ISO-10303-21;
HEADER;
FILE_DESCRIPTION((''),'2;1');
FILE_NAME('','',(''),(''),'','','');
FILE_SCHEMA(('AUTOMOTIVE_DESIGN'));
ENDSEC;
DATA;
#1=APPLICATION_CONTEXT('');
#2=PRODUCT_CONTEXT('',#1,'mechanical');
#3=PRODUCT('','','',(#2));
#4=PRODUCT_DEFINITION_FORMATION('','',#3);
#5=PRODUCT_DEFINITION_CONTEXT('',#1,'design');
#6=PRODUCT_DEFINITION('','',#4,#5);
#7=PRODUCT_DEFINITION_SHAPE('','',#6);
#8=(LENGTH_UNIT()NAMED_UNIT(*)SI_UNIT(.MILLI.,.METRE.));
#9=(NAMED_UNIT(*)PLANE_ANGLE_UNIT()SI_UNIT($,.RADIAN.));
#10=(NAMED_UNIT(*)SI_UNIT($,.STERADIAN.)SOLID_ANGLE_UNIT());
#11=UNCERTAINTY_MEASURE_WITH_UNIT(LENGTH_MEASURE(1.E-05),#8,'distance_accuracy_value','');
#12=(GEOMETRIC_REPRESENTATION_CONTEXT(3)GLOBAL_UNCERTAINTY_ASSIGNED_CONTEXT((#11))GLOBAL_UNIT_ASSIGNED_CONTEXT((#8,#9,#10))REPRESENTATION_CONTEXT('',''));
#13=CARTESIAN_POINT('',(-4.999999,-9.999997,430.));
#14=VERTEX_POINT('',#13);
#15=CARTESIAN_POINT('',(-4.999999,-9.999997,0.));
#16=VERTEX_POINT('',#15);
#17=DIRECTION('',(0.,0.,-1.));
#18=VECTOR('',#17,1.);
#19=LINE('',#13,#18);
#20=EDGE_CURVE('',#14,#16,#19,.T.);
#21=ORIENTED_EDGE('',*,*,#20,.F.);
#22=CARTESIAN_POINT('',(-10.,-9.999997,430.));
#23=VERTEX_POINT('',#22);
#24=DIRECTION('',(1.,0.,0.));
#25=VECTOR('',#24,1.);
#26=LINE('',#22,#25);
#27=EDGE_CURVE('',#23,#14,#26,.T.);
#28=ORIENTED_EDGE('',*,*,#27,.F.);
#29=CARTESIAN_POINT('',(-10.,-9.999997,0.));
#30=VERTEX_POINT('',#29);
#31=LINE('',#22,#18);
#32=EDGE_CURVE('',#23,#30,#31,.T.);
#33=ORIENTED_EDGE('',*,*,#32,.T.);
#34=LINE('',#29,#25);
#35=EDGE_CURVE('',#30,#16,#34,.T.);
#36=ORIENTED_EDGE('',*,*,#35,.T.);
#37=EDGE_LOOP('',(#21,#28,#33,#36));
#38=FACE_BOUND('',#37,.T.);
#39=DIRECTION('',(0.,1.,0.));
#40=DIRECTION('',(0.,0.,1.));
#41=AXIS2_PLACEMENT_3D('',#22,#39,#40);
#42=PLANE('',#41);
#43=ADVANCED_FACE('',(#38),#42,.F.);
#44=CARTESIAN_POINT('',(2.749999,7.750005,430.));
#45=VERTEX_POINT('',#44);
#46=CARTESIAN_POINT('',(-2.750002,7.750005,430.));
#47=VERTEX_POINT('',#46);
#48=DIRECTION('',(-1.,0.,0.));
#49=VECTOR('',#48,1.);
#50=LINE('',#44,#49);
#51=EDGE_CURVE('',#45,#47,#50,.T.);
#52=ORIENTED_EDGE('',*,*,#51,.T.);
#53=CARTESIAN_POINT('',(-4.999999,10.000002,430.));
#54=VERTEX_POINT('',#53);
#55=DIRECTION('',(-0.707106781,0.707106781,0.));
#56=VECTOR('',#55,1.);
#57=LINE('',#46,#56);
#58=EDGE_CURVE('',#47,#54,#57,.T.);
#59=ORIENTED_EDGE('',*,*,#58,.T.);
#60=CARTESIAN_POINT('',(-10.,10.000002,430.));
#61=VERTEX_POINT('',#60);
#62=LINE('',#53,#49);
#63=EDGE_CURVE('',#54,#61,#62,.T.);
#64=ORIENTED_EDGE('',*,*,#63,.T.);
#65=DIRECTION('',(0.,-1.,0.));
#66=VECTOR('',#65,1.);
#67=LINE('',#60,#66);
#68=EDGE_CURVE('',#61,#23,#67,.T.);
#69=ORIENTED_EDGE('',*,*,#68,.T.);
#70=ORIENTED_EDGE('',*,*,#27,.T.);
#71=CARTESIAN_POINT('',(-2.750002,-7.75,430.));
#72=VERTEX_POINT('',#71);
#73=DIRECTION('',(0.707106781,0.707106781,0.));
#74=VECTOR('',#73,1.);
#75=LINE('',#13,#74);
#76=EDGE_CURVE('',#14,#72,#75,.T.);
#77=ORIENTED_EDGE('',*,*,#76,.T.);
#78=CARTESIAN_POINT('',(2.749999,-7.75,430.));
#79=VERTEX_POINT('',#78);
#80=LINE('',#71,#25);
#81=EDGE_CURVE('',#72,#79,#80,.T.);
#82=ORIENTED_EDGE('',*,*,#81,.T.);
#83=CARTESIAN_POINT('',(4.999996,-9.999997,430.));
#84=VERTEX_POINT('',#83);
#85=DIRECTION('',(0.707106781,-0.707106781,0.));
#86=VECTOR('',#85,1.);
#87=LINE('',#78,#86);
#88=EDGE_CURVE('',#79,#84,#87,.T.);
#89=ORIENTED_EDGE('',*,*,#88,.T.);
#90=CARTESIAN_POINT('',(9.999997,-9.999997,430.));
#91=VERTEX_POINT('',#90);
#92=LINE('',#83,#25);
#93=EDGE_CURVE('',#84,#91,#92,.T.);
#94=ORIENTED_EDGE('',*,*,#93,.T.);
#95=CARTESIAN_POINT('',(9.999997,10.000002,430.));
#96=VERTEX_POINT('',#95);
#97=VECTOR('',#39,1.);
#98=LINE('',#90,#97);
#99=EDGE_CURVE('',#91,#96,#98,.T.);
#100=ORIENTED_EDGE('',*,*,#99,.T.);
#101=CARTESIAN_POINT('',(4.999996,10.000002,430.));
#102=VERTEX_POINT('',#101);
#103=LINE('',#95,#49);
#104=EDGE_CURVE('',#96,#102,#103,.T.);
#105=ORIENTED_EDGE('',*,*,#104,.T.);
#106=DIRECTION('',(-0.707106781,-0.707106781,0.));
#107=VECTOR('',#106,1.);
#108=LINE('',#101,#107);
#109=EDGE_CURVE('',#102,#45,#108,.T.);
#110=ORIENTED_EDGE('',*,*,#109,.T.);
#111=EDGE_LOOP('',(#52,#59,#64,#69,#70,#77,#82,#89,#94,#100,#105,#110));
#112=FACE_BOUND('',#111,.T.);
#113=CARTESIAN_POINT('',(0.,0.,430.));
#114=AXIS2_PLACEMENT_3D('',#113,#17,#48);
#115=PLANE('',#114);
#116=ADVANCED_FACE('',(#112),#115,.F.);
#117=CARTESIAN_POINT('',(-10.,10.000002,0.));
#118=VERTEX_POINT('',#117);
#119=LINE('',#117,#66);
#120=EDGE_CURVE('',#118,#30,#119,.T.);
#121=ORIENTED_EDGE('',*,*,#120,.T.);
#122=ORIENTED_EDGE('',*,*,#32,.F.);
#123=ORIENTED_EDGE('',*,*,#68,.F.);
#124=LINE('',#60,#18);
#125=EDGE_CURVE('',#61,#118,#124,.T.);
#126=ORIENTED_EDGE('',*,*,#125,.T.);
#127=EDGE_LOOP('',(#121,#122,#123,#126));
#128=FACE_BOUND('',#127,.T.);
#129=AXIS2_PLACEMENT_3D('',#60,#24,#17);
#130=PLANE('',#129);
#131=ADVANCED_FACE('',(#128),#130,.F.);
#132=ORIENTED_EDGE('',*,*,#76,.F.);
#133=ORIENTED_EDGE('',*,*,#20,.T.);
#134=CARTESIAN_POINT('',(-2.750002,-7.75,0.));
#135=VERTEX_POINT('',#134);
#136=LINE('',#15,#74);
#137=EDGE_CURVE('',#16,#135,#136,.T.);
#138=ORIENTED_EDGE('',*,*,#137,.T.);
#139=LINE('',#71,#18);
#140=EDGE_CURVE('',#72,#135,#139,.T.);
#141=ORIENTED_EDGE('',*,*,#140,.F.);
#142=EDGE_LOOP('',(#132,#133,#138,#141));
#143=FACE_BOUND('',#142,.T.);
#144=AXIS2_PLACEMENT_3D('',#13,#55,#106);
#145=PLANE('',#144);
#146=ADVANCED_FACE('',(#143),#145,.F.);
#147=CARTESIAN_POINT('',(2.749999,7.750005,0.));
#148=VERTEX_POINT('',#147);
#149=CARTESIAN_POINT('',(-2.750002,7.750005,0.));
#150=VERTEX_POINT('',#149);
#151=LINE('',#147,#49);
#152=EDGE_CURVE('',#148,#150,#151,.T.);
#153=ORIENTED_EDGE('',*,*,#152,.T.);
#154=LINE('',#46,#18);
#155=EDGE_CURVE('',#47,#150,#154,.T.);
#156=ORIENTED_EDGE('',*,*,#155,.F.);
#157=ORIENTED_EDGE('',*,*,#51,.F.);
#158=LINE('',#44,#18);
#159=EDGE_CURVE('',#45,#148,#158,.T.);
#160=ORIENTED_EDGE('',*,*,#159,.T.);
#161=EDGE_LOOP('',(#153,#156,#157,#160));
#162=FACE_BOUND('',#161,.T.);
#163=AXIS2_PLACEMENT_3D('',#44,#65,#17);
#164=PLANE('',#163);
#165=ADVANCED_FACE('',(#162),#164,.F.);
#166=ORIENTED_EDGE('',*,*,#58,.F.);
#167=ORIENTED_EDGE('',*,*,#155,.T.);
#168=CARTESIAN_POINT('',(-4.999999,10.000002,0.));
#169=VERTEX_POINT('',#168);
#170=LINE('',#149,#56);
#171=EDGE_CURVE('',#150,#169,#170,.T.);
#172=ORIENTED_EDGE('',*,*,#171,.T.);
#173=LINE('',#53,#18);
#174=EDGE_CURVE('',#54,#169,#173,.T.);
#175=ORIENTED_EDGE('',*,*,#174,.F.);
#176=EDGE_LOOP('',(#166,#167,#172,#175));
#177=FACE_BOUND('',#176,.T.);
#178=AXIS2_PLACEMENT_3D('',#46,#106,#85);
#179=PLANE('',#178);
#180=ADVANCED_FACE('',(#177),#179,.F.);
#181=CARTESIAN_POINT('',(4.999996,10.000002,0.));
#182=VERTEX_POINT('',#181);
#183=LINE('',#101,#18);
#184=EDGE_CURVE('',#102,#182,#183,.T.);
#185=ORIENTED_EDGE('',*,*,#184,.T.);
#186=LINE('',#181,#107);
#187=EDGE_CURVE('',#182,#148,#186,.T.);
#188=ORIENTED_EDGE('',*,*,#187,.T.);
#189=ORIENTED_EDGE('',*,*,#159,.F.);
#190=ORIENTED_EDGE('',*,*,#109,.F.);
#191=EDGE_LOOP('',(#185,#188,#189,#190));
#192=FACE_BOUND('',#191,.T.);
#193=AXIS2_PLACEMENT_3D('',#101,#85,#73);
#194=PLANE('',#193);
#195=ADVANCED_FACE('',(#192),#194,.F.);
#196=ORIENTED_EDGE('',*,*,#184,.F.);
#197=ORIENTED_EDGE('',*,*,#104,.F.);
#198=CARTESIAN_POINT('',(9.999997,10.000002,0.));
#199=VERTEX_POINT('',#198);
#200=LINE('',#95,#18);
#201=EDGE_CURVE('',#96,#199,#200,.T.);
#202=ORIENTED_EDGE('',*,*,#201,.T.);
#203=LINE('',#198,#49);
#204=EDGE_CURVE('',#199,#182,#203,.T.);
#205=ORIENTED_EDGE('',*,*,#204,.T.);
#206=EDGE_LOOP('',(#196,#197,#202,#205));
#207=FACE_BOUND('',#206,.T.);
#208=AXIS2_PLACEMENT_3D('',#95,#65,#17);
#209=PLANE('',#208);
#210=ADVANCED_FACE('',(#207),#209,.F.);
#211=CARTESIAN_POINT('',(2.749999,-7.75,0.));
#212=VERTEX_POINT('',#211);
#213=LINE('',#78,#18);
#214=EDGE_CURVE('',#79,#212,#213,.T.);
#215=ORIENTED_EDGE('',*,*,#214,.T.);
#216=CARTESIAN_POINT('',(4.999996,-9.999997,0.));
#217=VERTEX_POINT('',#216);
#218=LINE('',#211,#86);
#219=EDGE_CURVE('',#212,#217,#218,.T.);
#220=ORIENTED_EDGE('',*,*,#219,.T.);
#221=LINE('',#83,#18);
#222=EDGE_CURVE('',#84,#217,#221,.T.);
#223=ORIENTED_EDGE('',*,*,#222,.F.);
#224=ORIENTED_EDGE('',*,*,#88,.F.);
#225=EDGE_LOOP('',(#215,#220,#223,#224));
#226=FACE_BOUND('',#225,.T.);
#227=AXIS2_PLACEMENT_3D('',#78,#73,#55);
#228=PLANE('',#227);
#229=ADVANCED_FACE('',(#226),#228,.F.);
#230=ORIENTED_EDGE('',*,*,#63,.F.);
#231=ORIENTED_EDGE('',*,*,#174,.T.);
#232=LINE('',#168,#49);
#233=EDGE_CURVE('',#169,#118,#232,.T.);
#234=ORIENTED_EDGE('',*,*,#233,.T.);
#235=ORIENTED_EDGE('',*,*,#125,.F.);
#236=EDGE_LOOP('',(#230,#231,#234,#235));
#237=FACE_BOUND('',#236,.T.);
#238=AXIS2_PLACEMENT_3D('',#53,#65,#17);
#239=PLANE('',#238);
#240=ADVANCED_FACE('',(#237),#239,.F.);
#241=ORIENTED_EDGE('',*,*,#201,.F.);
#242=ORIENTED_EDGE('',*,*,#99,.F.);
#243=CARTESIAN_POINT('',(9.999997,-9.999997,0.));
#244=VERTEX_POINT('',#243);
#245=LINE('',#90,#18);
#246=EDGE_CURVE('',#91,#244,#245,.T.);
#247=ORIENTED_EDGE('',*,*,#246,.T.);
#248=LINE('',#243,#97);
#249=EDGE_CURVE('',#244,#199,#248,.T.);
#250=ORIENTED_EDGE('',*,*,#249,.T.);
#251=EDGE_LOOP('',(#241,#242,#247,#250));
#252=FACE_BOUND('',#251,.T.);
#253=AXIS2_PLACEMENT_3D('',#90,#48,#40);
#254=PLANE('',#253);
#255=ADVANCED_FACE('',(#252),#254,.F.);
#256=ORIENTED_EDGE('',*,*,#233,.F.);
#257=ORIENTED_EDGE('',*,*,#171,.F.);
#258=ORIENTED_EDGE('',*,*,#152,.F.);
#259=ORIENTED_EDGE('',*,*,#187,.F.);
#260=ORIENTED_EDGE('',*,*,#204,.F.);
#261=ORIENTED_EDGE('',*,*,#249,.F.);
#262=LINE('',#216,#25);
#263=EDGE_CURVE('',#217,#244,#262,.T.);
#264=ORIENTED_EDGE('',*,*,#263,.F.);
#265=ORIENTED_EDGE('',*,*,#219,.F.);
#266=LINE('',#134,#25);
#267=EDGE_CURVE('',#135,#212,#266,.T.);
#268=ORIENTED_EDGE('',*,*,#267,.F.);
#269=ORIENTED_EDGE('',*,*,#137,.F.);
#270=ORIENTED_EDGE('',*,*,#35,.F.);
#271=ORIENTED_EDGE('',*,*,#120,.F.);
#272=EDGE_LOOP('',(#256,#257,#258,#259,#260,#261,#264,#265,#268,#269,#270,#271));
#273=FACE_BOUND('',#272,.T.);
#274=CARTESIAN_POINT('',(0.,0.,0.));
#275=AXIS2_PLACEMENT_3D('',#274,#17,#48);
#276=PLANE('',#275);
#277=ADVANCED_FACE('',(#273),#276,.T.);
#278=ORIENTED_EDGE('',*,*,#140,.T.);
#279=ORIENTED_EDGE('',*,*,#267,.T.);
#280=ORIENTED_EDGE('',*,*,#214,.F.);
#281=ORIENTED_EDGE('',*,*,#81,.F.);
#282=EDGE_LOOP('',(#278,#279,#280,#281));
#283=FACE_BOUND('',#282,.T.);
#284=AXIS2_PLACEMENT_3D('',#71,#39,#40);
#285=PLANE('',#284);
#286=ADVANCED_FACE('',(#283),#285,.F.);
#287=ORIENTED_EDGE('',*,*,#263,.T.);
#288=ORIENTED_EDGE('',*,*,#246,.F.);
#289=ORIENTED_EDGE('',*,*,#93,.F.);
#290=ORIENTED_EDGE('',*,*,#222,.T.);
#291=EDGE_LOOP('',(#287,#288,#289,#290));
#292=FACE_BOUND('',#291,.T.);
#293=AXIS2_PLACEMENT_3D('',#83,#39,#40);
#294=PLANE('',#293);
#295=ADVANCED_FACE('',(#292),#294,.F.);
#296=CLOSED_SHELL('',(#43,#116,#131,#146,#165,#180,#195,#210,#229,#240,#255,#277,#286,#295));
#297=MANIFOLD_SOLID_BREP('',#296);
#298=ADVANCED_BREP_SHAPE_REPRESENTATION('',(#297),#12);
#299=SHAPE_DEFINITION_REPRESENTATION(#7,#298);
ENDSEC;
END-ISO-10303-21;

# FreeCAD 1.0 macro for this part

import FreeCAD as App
import Part
import Sketcher

V = App.Vector
Q = App.Units.Quantity

doc = App.newDocument("Part")
params = doc.addObject("Spreadsheet::Sheet", "Params")
for row, (alias, value) in enumerate([
    ("sketch1_width", "5.000001 mm"),
    ("sketch1_height", "20 mm"),
    ("sketch1_width2", "5.5 mm"),
    ("pad1_length", "430 mm"),
], start=1):
    params.set(f"A{row}", alias)
    params.set(f"B{row}", "=" + value)
    params.setAlias(f"B{row}", alias)

body = doc.addObject("PartDesign::Body", "Body")

# Sketch on XY plane
sketch1 = body.newObject("Sketcher::SketchObject", "Sketch")
sketch1.AttachmentSupport = (doc.getObject("XY_Plane"), [""])
sketch1.MapMode = "FlatFace"
sketch1.addGeometry(Part.LineSegment(V(-2.750002, -7.75, 0), V(2.749999, -7.75, 0)), False)
sketch1.addGeometry(Part.LineSegment(V(2.749999, -7.75, 0), V(4.999996, -9.999997, 0)), False)
sketch1.addGeometry(Part.LineSegment(V(4.999996, -9.999997, 0), V(9.999997, -9.999997, 0)), False)
sketch1.addGeometry(Part.LineSegment(V(9.999997, -9.999997, 0), V(9.999997, 10.000002, 0)), False)
sketch1.addGeometry(Part.LineSegment(V(9.999997, 10.000002, 0), V(4.999996, 10.000002, 0)), False)
sketch1.addGeometry(Part.LineSegment(V(4.999996, 10.000002, 0), V(2.749999, 7.750005, 0)), False)
sketch1.addGeometry(Part.LineSegment(V(2.749999, 7.750005, 0), V(-2.750002, 7.750005, 0)), False)
sketch1.addGeometry(Part.LineSegment(V(-2.750002, 7.750005, 0), V(-4.999999, 10.000002, 0)), False)
sketch1.addGeometry(Part.LineSegment(V(-4.999999, 10.000002, 0), V(-10, 10.000002, 0)), False)
sketch1.addGeometry(Part.LineSegment(V(-10, 10.000002, 0), V(-10, -9.999997, 0)), False)
sketch1.addGeometry(Part.LineSegment(V(-10, -9.999997, 0), V(-4.999999, -9.999997, 0)), False)
sketch1.addGeometry(Part.LineSegment(V(-4.999999, -9.999997, 0), V(-2.750002, -7.75, 0)), False)
sketch1.addConstraint(Sketcher.Constraint("Coincident", 0, 2, 1, 1))
sketch1.addConstraint(Sketcher.Constraint("Coincident", 1, 2, 2, 1))
sketch1.addConstraint(Sketcher.Constraint("Coincident", 2, 2, 3, 1))
sketch1.addConstraint(Sketcher.Constraint("Coincident", 3, 2, 4, 1))
sketch1.addConstraint(Sketcher.Constraint("Coincident", 4, 2, 5, 1))
sketch1.addConstraint(Sketcher.Constraint("Coincident", 5, 2, 6, 1))
sketch1.addConstraint(Sketcher.Constraint("Coincident", 6, 2, 7, 1))
sketch1.addConstraint(Sketcher.Constraint("Coincident", 7, 2, 8, 1))
sketch1.addConstraint(Sketcher.Constraint("Coincident", 8, 2, 9, 1))
sketch1.addConstraint(Sketcher.Constraint("Coincident", 9, 2, 10, 1))
sketch1.addConstraint(Sketcher.Constraint("Coincident", 10, 2, 11, 1))
sketch1.addConstraint(Sketcher.Constraint("Coincident", 11, 2, 0, 1))
sketch1.addConstraint(Sketcher.Constraint("Horizontal", 0))
sketch1.addConstraint(Sketcher.Constraint("Horizontal", 2))
sketch1.addConstraint(Sketcher.Constraint("Vertical", 3))
sketch1.addConstraint(Sketcher.Constraint("Horizontal", 4))
sketch1.addConstraint(Sketcher.Constraint("Horizontal", 6))
sketch1.addConstraint(Sketcher.Constraint("Horizontal", 8))
sketch1.addConstraint(Sketcher.Constraint("Vertical", 9))
sketch1.addConstraint(Sketcher.Constraint("Horizontal", 10))
sketch1.addConstraint(Sketcher.Constraint("Symmetric", 0, 2, 6, 2, -1, 1))
sketch1.addConstraint(Sketcher.Constraint("Symmetric", 1, 2, 7, 2, -1, 1))
sketch1.addConstraint(Sketcher.Constraint("Symmetric", 3, 2, 9, 2, -1, 1))
sketch1.addConstraint(Sketcher.Constraint("Symmetric", 4, 2, 7, 2, -2))
sketch1.addConstraint(Sketcher.Constraint("Perpendicular", 1, 5))
sketch1.addConstraint(Sketcher.Constraint("Perpendicular", 7, 11))
sketch1.addConstraint(Sketcher.Constraint("Vertical", 0, 2, 5, 2))
sketch1.addConstraint(Sketcher.Constraint("Vertical", 7, 2, 10, 2))
sketch1.addConstraint(Sketcher.Constraint("DistanceX", 2, 1, 2, 2, Q("5.000001 mm")))
sketch1.addConstraint(Sketcher.Constraint("DistanceY", 3, 1, 3, 2, Q("20 mm")))
sketch1.addConstraint(Sketcher.Constraint("DistanceX", 0, 1, 0, 2, Q("5.5 mm")))
sketch1.addConstraint(Sketcher.Constraint("DistanceX", 7, 2, -1, 1, Q("4.999999 mm")))
sketch1.setExpression("Constraints[28]", "Params.sketch1_width")
sketch1.setExpression("Constraints[29]", "Params.sketch1_height")
sketch1.setExpression("Constraints[30]", "Params.sketch1_width2")
pad1 = body.newObject("PartDesign::Pad", "Pad")
pad1.Profile = sketch1
pad1.setExpression("Length", "Params.pad1_length")

doc.recompute()
